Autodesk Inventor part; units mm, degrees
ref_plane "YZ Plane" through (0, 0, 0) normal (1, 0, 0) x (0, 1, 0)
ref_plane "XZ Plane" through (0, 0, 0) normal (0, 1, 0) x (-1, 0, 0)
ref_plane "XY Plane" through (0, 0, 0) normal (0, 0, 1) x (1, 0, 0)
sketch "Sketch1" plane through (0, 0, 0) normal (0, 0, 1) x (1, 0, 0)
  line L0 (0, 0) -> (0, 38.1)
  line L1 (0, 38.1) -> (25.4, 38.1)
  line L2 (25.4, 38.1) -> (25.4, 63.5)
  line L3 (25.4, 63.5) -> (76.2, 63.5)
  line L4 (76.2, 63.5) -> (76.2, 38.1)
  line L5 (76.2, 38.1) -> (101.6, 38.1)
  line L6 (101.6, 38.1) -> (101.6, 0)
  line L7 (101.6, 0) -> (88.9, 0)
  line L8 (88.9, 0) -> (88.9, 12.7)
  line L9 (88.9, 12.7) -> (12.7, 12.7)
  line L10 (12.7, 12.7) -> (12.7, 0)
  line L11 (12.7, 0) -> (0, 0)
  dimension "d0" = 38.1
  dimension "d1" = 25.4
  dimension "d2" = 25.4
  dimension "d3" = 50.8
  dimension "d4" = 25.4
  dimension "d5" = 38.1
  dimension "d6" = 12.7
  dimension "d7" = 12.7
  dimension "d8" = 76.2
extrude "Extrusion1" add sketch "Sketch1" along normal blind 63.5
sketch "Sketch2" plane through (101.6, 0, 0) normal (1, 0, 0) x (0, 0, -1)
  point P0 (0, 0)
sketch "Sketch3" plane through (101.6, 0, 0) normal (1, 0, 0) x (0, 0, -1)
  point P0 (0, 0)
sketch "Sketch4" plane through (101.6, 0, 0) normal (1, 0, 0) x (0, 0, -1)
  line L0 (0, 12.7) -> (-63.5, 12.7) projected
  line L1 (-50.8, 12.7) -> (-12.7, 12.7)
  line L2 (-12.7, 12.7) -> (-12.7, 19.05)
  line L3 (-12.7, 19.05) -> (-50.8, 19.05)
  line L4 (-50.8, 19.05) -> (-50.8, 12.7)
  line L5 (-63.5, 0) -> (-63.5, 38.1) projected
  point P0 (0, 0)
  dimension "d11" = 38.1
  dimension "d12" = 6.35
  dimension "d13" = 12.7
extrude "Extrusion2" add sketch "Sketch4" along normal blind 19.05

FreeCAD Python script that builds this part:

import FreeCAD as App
import Part
import Sketcher
Q = App.Units.Quantity

doc = App.newDocument("Part")
body = doc.addObject("PartDesign::Body", "Body")

sketch1 = body.newObject("Sketcher::SketchObject", "Sketch")
sketch1.AttachmentSupport = (doc.getObject("XY_Plane"), [""])
sketch1.MapMode = "FlatFace"
sketch1.addGeometry([
    Part.LineSegment(App.Vector(0, 38, 0), App.Vector(0, 0, 0)),
    Part.LineSegment(App.Vector(0, 0, 0), App.Vector(13, 0, 0)),
    Part.LineSegment(App.Vector(13, 0, 0), App.Vector(13, 13, 0)),
    Part.LineSegment(App.Vector(13, 13, 0), App.Vector(89, 13, 0)),
    Part.LineSegment(App.Vector(89, 13, 0), App.Vector(89, 0, 0)),
    Part.LineSegment(App.Vector(89, 0, 0), App.Vector(102, 0, 0)),
    Part.LineSegment(App.Vector(102, 0, 0), App.Vector(102, 38, 0)),
    Part.LineSegment(App.Vector(102, 38, 0), App.Vector(76, 38, 0)),
    Part.LineSegment(App.Vector(76, 38, 0), App.Vector(76, 64, 0)),
    Part.LineSegment(App.Vector(76, 64, 0), App.Vector(25, 64, 0)),
    Part.LineSegment(App.Vector(25, 64, 0), App.Vector(25, 38, 0)),
    Part.LineSegment(App.Vector(25, 38, 0), App.Vector(0, 38, 0)),
], False)
sketch1.addConstraint([
    Sketcher.Constraint("Coincident", 0, 2, 1, 1),
    Sketcher.Constraint("Coincident", 1, 2, 2, 1),
    Sketcher.Constraint("Coincident", 2, 2, 3, 1),
    Sketcher.Constraint("Coincident", 3, 2, 4, 1),
    Sketcher.Constraint("Coincident", 4, 2, 5, 1),
    Sketcher.Constraint("Coincident", 5, 2, 6, 1),
    Sketcher.Constraint("Coincident", 6, 2, 7, 1),
    Sketcher.Constraint("Coincident", 7, 2, 8, 1),
    Sketcher.Constraint("Coincident", 8, 2, 9, 1),
    Sketcher.Constraint("Coincident", 9, 2, 10, 1),
    Sketcher.Constraint("Coincident", 10, 2, 11, 1),
    Sketcher.Constraint("Coincident", 11, 2, 0, 1),
    Sketcher.Constraint("Vertical", 0),
    Sketcher.Constraint("Horizontal", 1),
    Sketcher.Constraint("Vertical", 2),
    Sketcher.Constraint("Horizontal", 3),
    Sketcher.Constraint("Vertical", 4),
    Sketcher.Constraint("Horizontal", 5),
    Sketcher.Constraint("Vertical", 6),
    Sketcher.Constraint("Horizontal", 7),
    Sketcher.Constraint("Vertical", 8),
    Sketcher.Constraint("Horizontal", 9),
    Sketcher.Constraint("Vertical", 10),
    Sketcher.Constraint("Horizontal", 11),
    Sketcher.Constraint("Coincident", 0, 2, -1, 1),
    Sketcher.Constraint("PointOnObject", 4, 2, -1),
    Sketcher.Constraint("Horizontal", 7, 2, 10, 2),
    Sketcher.Constraint("Equal", 1, 5),
    Sketcher.Constraint("Equal", 7, 11),
    Sketcher.Constraint("Equal", 5, 2),
    Sketcher.Constraint("Equal", 11, 8),
    Sketcher.Constraint("DistanceX", 3, 1, 3, 2, Q("3 in")),
    Sketcher.Constraint("DistanceX", 7, 2, 7, 1, Q("1 in")),
    Sketcher.Constraint("DistanceX", 9, 2, 9, 1, Q("2 in")),
    Sketcher.Constraint("DistanceY", 0, 2, 0, 1, Q("1.5 in")),
])
pad1 = body.newObject("PartDesign::Pad", "Pad")
pad1.Profile = sketch1
pad1.Length = Q("2.5 in")

sketch2 = body.newObject("Sketcher::SketchObject", "Sketch001")
sketch2.AttachmentSupport = (doc.getObject("YZ_Plane"), [""])
sketch2.MapMode = "FlatFace"
sketch2.AttachmentOffset = App.Placement(App.Vector(0, 0, 4 * 25.4), App.Rotation())
sketch2.addGeometry([
    Part.LineSegment(App.Vector(13, 51, 0), App.Vector(13, 13, 0)),
    Part.LineSegment(App.Vector(13, 13, 0), App.Vector(19, 13, 0)),
    Part.LineSegment(App.Vector(19, 13, 0), App.Vector(19, 51, 0)),
    Part.LineSegment(App.Vector(19, 51, 0), App.Vector(13, 51, 0)),
], False)
sketch2.addConstraint([
    Sketcher.Constraint("Coincident", 0, 2, 1, 1),
    Sketcher.Constraint("Coincident", 1, 2, 2, 1),
    Sketcher.Constraint("Coincident", 2, 2, 3, 1),
    Sketcher.Constraint("Coincident", 3, 2, 0, 1),
    Sketcher.Constraint("Vertical", 0),
    Sketcher.Constraint("Horizontal", 1),
    Sketcher.Constraint("Vertical", 2),
    Sketcher.Constraint("Horizontal", 3),
    Sketcher.Constraint("DistanceY", 0, 2, 0, 1, Q("1.5 in")),
    Sketcher.Constraint("DistanceX", 1, 1, 1, 2, Q("0.25 in")),
    Sketcher.Constraint("DistanceX", -1, 1, 0, 2, Q("0.5 in")),
    Sketcher.Constraint("DistanceY", -1, 1, 0, 2, Q("0.5 in")),
])
pad2 = body.newObject("PartDesign::Pad", "Pad001")
pad2.Profile = sketch2
pad2.Length = Q("0.75 in")

doc.recompute()
